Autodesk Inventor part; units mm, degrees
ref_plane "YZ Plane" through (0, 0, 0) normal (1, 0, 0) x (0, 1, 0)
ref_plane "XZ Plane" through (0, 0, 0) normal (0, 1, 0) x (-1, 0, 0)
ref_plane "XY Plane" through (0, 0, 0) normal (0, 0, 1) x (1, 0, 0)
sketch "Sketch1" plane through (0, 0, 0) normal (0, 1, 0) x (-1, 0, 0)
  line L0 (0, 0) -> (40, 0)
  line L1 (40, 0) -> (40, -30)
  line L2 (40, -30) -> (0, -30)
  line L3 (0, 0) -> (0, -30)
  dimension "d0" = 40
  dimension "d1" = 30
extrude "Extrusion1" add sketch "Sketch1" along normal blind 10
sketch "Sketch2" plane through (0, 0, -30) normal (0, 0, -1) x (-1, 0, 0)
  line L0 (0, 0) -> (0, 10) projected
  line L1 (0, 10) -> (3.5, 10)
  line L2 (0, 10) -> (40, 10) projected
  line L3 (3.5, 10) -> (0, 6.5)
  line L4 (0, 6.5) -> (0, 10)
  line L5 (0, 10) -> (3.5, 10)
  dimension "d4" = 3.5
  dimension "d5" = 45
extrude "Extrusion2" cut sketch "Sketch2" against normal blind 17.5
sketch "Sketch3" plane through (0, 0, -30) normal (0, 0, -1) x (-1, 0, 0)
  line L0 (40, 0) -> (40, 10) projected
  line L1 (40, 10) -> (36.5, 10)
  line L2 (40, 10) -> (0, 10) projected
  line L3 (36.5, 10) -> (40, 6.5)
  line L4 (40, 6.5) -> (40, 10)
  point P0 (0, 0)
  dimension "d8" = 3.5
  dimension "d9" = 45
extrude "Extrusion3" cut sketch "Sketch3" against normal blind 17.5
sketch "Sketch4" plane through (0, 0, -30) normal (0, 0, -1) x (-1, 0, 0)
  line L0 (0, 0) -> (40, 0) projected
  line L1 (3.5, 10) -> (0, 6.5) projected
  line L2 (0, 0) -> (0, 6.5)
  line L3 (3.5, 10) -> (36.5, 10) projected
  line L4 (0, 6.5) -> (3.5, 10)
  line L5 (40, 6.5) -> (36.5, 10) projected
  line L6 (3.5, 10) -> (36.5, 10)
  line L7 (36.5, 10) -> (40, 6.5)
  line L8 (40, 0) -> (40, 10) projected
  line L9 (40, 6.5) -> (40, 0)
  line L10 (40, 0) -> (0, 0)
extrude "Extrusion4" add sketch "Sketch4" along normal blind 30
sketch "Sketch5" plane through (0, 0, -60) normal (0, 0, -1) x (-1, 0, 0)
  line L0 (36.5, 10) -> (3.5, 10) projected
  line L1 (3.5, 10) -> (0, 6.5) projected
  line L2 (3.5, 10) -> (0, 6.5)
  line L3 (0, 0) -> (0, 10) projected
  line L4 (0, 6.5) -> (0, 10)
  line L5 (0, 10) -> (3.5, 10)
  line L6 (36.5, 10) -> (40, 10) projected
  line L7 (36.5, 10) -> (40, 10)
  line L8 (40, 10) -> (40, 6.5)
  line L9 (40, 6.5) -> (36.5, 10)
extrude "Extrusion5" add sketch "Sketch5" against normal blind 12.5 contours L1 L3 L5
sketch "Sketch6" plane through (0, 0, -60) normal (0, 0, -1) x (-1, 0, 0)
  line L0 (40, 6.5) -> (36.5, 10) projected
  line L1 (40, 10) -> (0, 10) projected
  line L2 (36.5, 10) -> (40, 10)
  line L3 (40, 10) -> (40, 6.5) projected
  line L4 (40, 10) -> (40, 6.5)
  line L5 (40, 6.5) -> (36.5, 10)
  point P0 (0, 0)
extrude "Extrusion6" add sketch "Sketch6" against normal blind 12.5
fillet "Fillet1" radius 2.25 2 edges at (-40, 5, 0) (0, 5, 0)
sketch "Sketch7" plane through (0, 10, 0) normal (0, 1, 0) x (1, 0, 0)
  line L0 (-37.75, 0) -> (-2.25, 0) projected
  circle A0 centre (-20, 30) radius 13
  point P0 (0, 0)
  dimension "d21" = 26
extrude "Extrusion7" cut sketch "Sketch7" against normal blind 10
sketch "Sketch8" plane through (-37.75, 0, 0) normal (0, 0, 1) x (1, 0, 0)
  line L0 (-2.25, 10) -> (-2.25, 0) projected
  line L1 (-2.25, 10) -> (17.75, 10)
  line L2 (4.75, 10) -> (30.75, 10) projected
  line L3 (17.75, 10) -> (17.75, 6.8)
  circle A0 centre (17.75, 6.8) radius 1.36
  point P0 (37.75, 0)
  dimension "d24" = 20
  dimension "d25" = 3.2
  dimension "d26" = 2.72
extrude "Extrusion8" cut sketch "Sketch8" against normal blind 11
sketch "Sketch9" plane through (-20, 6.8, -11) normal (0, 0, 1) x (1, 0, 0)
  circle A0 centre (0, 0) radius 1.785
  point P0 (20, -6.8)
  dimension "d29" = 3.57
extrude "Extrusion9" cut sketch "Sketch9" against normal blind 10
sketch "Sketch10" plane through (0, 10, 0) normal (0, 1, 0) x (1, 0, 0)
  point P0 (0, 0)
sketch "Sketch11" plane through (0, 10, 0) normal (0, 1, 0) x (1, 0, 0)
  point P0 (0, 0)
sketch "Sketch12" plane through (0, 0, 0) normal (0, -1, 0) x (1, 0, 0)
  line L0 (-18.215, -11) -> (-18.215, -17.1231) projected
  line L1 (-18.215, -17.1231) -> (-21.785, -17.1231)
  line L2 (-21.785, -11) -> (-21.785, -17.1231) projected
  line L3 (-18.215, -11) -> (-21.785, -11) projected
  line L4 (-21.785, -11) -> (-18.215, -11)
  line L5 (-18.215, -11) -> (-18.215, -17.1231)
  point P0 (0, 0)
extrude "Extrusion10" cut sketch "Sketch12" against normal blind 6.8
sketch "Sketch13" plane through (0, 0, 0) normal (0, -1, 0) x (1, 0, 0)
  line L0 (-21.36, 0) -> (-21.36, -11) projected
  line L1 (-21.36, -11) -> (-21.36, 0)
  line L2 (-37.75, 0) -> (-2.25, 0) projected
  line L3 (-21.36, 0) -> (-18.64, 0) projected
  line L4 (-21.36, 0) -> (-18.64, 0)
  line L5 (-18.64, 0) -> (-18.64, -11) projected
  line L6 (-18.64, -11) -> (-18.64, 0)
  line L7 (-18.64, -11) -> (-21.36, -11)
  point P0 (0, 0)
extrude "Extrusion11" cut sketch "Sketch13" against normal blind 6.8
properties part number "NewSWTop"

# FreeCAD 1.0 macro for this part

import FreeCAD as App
import Part
import Sketcher


def edges_at(feature, points):
    """Names of the edges that pass closest to the given points."""
    edges = feature.Shape.Edges
    near = lambda p: min(range(len(edges)), key=lambda i: edges[i].distToShape(Part.Vertex(*p))[0])
    return sorted({f"Edge{near(p) + 1}" for p in points})


def add_polygon(sketch, points):
    """Adds a closed chain of lines whose ends are joined by coincident constraints."""
    first, n = sketch.GeometryCount, len(points)
    for a, b in zip(points, points[1:] + points[:1]):
        sketch.addGeometry(Part.LineSegment(App.Vector(*a, 0), App.Vector(*b, 0)), False)
    for i in range(n):
        sketch.addConstraint(Sketcher.Constraint("Coincident", first + i, 2, first + (i + 1) % n, 1))

doc = App.newDocument("Part")
body = doc.addObject("PartDesign::Body", "Body")

sketch1 = doc.addObject("Sketcher::SketchObject", "Sketch")
body.addObject(sketch1)
sketch1.AttachmentSupport = (doc.XZ_Plane, [""])
sketch1.MapMode = "FlatFace"
add_polygon(sketch1, [(-40, 0), (0, 0), (0, -30), (-40, -30)])
sketch1.addConstraint([
    Sketcher.Constraint("Horizontal", 0),
    Sketcher.Constraint("Vertical", 1),
    Sketcher.Constraint("Horizontal", 2),
    Sketcher.Constraint("Vertical", 3),
    Sketcher.Constraint("Coincident", 0, 2, -1, 1),
    Sketcher.Constraint("DistanceX", 0, 1, 0, 2, 40.0),
    Sketcher.Constraint("DistanceY", 1, 2, 1, 1, 30.0),
])
pad1 = doc.addObject("PartDesign::Pad", "Pad")
body.addObject(pad1)
pad1.Profile = sketch1
pad1.Length = 10
pad1.Reversed = True

sketch2 = doc.addObject("Sketcher::SketchObject", "Sketch001")
body.addObject(sketch2)
sketch2.AttachmentSupport = (doc.XY_Plane, [""])
sketch2.MapMode = "FlatFace"
sketch2.AttachmentOffset = App.Placement(App.Vector(0, 0, -30), App.Rotation())
add_polygon(sketch2, [(0, 10), (0, 6.5), (-3.5, 10)])
sketch2.addConstraint([
    Sketcher.Constraint("Vertical", 0),
    Sketcher.Constraint("Horizontal", 2),
    Sketcher.Constraint("PointOnObject", 0, 2, -2),
    Sketcher.Constraint("Equal", 2, 0),
    Sketcher.Constraint("DistanceX", 2, 1, 2, 2, 3.5),
    Sketcher.Constraint("DistanceY", -1, 1, 1, 2, 10.0),
])
pocket1 = doc.addObject("PartDesign::Pocket", "Pocket")
body.addObject(pocket1)
pocket1.Profile = sketch2
pocket1.Length = 17.5
pocket1.Reversed = True

sketch3 = doc.addObject("Sketcher::SketchObject", "Sketch002")
body.addObject(sketch3)
sketch3.AttachmentSupport = (doc.XY_Plane, [""])
sketch3.MapMode = "FlatFace"
sketch3.AttachmentOffset = App.Placement(App.Vector(0, 0, -30), App.Rotation())
add_polygon(sketch3, [(-36.5, 10), (-40, 6.5), (-40, 10)])
sketch3.addConstraint([
    Sketcher.Constraint("Vertical", 1),
    Sketcher.Constraint("Horizontal", 2),
    Sketcher.Constraint("Equal", 2, 1),
    Sketcher.Constraint("DistanceX", 2, 1, 2, 2, 3.5),
    Sketcher.Constraint("DistanceX", 0, 2, -1, 1, 40.0),
    Sketcher.Constraint("DistanceY", -1, 1, 1, 2, 10.0),
])
pocket2 = doc.addObject("PartDesign::Pocket", "Pocket001")
body.addObject(pocket2)
pocket2.Profile = sketch3
pocket2.Length = 17.5
pocket2.Reversed = True

sketch4 = doc.addObject("Sketcher::SketchObject", "Sketch003")
body.addObject(sketch4)
sketch4.AttachmentSupport = (doc.XY_Plane, [""])
sketch4.MapMode = "FlatFace"
sketch4.AttachmentOffset = App.Placement(App.Vector(0, 0, -30), App.Rotation())
add_polygon(sketch4, [(0, 6.5), (0, 0), (-40, 0), (-40, 6.5), (-36.5, 10), (-3.5, 10)])
sketch4.addConstraint([
    Sketcher.Constraint("Vertical", 0),
    Sketcher.Constraint("Horizontal", 1),
    Sketcher.Constraint("Vertical", 2),
    Sketcher.Constraint("Horizontal", 4),
    Sketcher.Constraint("Coincident", 0, 2, -1, 1),
    Sketcher.Constraint("Perpendicular", 3, 5),
    Sketcher.Constraint("Horizontal", 2, 2, 5, 2),
    Sketcher.Constraint("Equal", 3, 5),
    Sketcher.Constraint("DistanceX", 1, 2, 1, 1, 40.0),
    Sketcher.Constraint("DistanceX", 4, 1, 4, 2, 33.0),
    Sketcher.Constraint("DistanceY", 0, 2, 0, 1, 6.5),
])
pad2 = doc.addObject("PartDesign::Pad", "Pad001")
body.addObject(pad2)
pad2.Profile = sketch4
pad2.Length = 30
pad2.Reversed = True

sketch5 = doc.addObject("Sketcher::SketchObject", "Sketch004")
body.addObject(sketch5)
sketch5.AttachmentSupport = (doc.XY_Plane, [""])
sketch5.MapMode = "FlatFace"
sketch5.AttachmentOffset = App.Placement(App.Vector(0, 0, -60), App.Rotation())
add_polygon(sketch5, [(0, 6.5), (-3.5, 10), (0, 10)])
sketch5.addConstraint([
    Sketcher.Constraint("Horizontal", 1),
    Sketcher.Constraint("Vertical", 2),
    Sketcher.Constraint("PointOnObject", 1, 2, -2),
    Sketcher.Constraint("Equal", 1, 2),
    Sketcher.Constraint("DistanceX", 1, 1, 1, 2, 3.5),
    Sketcher.Constraint("DistanceY", -1, 1, 0, 2, 10.0),
])
pad3 = doc.addObject("PartDesign::Pad", "Pad002")
body.addObject(pad3)
pad3.Profile = sketch5
pad3.Length = 12.5

sketch6 = doc.addObject("Sketcher::SketchObject", "Sketch005")
body.addObject(sketch6)
sketch6.AttachmentSupport = (doc.XY_Plane, [""])
sketch6.MapMode = "FlatFace"
sketch6.AttachmentOffset = App.Placement(App.Vector(0, 0, -60), App.Rotation())
add_polygon(sketch6, [(-36.5, 10), (-40, 6.5), (-40, 10)])
sketch6.addConstraint([
    Sketcher.Constraint("Vertical", 1),
    Sketcher.Constraint("Horizontal", 2),
    Sketcher.Constraint("Equal", 2, 1),
    Sketcher.Constraint("DistanceX", 2, 1, 2, 2, 3.5),
    Sketcher.Constraint("DistanceX", 0, 2, -1, 1, 40.0),
    Sketcher.Constraint("DistanceY", -1, 1, 1, 2, 10.0),
])
pad4 = doc.addObject("PartDesign::Pad", "Pad003")
body.addObject(pad4)
pad4.Profile = sketch6
pad4.Length = 12.5
doc.recompute()

fillet = doc.addObject("PartDesign::Fillet", "Fillet")
body.addObject(fillet)
fillet.Base = (pad4, edges_at(pad4, [(-40, 5, 0), (0, 5, 0)]))
fillet.Radius = 2.25

sketch7 = doc.addObject("Sketcher::SketchObject", "Sketch006")
body.addObject(sketch7)
sketch7.AttachmentSupport = (doc.XZ_Plane, [""])
sketch7.MapMode = "FlatFace"
sketch7.AttachmentOffset = App.Placement(App.Vector(0, 0, -10), App.Rotation())
sketch7.addGeometry(Part.Circle(App.Vector(-20, -30, 0), App.Vector(0, 0, 1), 13), False)
sketch7.addConstraint([
    Sketcher.Constraint("Diameter", 0, 26.0),
    Sketcher.Constraint("DistanceX", 0, 3, -1, 1, 20.0),
    Sketcher.Constraint("DistanceY", 0, 3, -1, 1, 30.0),
])
pocket3 = doc.addObject("PartDesign::Pocket", "Pocket002")
body.addObject(pocket3)
pocket3.Profile = sketch7
pocket3.Length = 10
pocket3.Reversed = True

sketch8 = doc.addObject("Sketcher::SketchObject", "Sketch007")
body.addObject(sketch8)
sketch8.AttachmentSupport = (doc.XY_Plane, [""])
sketch8.MapMode = "FlatFace"
sketch8.addGeometry(Part.Circle(App.Vector(-20, 6.8, 0), App.Vector(0, 0, 1), 1.36), False)
sketch8.addConstraint([
    Sketcher.Constraint("Diameter", 0, 2.72),
    Sketcher.Constraint("DistanceX", 0, 3, -1, 1, 20.0),
    Sketcher.Constraint("DistanceY", -1, 1, 0, 3, 6.8),
])
pocket4 = doc.addObject("PartDesign::Pocket", "Pocket003")
body.addObject(pocket4)
pocket4.Profile = sketch8
pocket4.Length = 11

sketch9 = doc.addObject("Sketcher::SketchObject", "Sketch008")
body.addObject(sketch9)
sketch9.AttachmentSupport = (doc.XY_Plane, [""])
sketch9.MapMode = "FlatFace"
sketch9.AttachmentOffset = App.Placement(App.Vector(0, 0, -11), App.Rotation())
sketch9.addGeometry(Part.Circle(App.Vector(-20, 6.8, 0), App.Vector(0, 0, 1), 1.785), False)
sketch9.addConstraint([
    Sketcher.Constraint("Diameter", 0, 3.57),
    Sketcher.Constraint("DistanceX", 0, 3, -1, 1, 20.0),
    Sketcher.Constraint("DistanceY", -1, 1, 0, 3, 6.8),
])
pocket5 = doc.addObject("PartDesign::Pocket", "Pocket004")
body.addObject(pocket5)
pocket5.Profile = sketch9
pocket5.Length = 10

sketch10 = doc.addObject("Sketcher::SketchObject", "Sketch009")
body.addObject(sketch10)
sketch10.AttachmentSupport = (doc.XZ_Plane, [""])
sketch10.MapMode = "FlatFace"
add_polygon(sketch10, [(-18.215, -17.1231), (-18.215, -11), (-21.785, -11), (-21.785, -17.1231)])
sketch10.addConstraint([
    Sketcher.Constraint("Vertical", 0),
    Sketcher.Constraint("Horizontal", 1),
    Sketcher.Constraint("Vertical", 2),
    Sketcher.Constraint("Horizontal", 3),
    Sketcher.Constraint("DistanceY", 0, 2, -1, 1, 11.0),
    Sketcher.Constraint("DistanceX", 1, 2, 1, 1, 3.57),
    Sketcher.Constraint("DistanceY", 0, 1, 0, 2, 6.123),
    Sketcher.Constraint("DistanceX", 0, 2, -1, 1, 18.215),
])
pocket6 = doc.addObject("PartDesign::Pocket", "Pocket005")
body.addObject(pocket6)
pocket6.Profile = sketch10
pocket6.Length = 6.8

sketch11 = doc.addObject("Sketcher::SketchObject", "Sketch010")
body.addObject(sketch11)
sketch11.AttachmentSupport = (doc.XZ_Plane, [""])
sketch11.MapMode = "FlatFace"
add_polygon(sketch11, [(-18.64, 0), (-21.36, 0), (-21.36, -11), (-18.64, -11)])
sketch11.addConstraint([
    Sketcher.Constraint("Horizontal", 0),
    Sketcher.Constraint("Vertical", 1),
    Sketcher.Constraint("Horizontal", 2),
    Sketcher.Constraint("Vertical", 3),
    Sketcher.Constraint("PointOnObject", 0, 2, -1),
    Sketcher.Constraint("DistanceY", 1, 2, 1, 1, 11.0),
    Sketcher.Constraint("DistanceX", 0, 2, 0, 1, 2.72),
    Sketcher.Constraint("DistanceX", 0, 2, -1, 1, 21.36),
])
pocket7 = doc.addObject("PartDesign::Pocket", "Pocket006")
body.addObject(pocket7)
pocket7.Profile = sketch11
pocket7.Length = 6.8

doc.recompute()
